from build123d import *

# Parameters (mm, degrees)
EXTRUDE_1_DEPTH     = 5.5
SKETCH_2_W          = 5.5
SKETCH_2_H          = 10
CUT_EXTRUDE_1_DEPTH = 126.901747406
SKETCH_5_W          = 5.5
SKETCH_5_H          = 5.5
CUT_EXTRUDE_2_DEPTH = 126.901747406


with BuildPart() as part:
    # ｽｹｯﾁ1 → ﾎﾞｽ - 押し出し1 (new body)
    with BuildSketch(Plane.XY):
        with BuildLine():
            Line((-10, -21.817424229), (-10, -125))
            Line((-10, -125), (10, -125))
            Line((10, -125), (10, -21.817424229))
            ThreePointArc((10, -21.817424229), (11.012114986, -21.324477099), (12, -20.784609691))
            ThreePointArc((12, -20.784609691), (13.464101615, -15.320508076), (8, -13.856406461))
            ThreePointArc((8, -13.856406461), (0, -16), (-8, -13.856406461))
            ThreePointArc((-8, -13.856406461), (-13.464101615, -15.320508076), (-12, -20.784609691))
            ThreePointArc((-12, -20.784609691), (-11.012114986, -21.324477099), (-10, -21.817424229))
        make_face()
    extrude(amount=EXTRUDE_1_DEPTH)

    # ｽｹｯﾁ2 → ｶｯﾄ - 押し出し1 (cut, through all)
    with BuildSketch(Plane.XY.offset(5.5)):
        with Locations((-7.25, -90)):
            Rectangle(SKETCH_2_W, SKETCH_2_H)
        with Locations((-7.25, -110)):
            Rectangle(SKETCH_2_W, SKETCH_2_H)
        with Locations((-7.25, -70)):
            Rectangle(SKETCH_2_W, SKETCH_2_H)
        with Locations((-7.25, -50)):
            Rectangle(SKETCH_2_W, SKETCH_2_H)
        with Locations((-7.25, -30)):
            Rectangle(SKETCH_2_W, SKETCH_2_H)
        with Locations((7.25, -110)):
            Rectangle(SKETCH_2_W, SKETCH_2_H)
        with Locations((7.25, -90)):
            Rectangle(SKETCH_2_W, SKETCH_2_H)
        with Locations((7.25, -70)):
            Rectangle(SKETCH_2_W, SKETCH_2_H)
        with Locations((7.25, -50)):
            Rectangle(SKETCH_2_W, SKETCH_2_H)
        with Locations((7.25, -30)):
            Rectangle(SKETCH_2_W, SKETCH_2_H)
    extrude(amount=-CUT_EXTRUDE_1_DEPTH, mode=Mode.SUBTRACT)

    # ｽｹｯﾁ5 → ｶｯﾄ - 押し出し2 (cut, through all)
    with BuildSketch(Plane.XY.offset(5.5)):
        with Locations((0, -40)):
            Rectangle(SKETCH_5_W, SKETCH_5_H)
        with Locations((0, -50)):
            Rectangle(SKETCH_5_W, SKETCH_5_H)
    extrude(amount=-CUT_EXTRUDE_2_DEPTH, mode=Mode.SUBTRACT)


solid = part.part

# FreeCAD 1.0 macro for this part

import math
import FreeCAD as App
import Part
import Sketcher

V = App.Vector
Q = App.Units.Quantity


def add_polygon(sketch, points):
    """Adds a closed chain of lines whose ends are joined by coincident constraints."""
    first, n = sketch.GeometryCount, len(points)
    for a, b in zip(points, points[1:] + points[:1]):
        sketch.addGeometry(Part.LineSegment(App.Vector(*a, 0), App.Vector(*b, 0)), False)
    for i in range(n):
        sketch.addConstraint(Sketcher.Constraint("Coincident", first + i, 2, first + (i + 1) % n, 1))

doc = App.newDocument("Part")
body = doc.addObject("PartDesign::Body", "Body")

sketch1 = body.newObject("Sketcher::SketchObject", "Sketch")
sketch1.AttachmentSupport = (doc.getObject("XY_Plane"), [""])
sketch1.MapMode = "FlatFace"
sketch1.addGeometry([
    Part.LineSegment(V(-10, -21.8, 0), V(-10, -125, 0)),
    Part.LineSegment(V(-10, -125, 0), V(10, -125, 0)),
    Part.LineSegment(V(10, -125, 0), V(10, -21.8, 0)),
    Part.ArcOfCircle(Part.Circle(V(0, 0, 0), V(0, 0, 1), 24), math.radians(-65.38), math.radians(-60)),
    Part.ArcOfCircle(Part.Circle(V(10, -17.3, 0), V(0, 0, 1), 4), math.radians(-60), math.radians(120)),
    Part.ArcOfCircle(Part.Circle(V(0, 0, 0), V(0, 0, 1), 16), math.radians(-120), math.radians(-60)),
    Part.ArcOfCircle(Part.Circle(V(-10, -17.3, 0), V(0, 0, 1), 4), math.radians(60), math.radians(240)),
    Part.ArcOfCircle(Part.Circle(V(0, 0, 0), V(0, 0, 1), 24), math.radians(-120), math.radians(-114.62)),
], False)
sketch1.addConstraint([
    Sketcher.Constraint("Coincident", 0, 2, 1, 1),
    Sketcher.Constraint("Coincident", 1, 2, 2, 1),
    Sketcher.Constraint("Coincident", 2, 2, 3, 1),
    Sketcher.Constraint("Tangent", 3, 2, 4, 1),
    Sketcher.Constraint("Tangent", 4, 2, 5, 2),
    Sketcher.Constraint("Tangent", 5, 1, 6, 1),
    Sketcher.Constraint("Tangent", 6, 2, 7, 1),
    Sketcher.Constraint("Coincident", 7, 2, 0, 1),
    Sketcher.Constraint("Vertical", 0),
    Sketcher.Constraint("Horizontal", 1),
    Sketcher.Constraint("Vertical", 2),
    Sketcher.Constraint("Coincident", 3, 3, -1, 1),
    Sketcher.Constraint("Coincident", 5, 3, -1, 1),
    Sketcher.Constraint("Coincident", 7, 3, -1, 1),
    Sketcher.Constraint("Equal", 4, 6),
    Sketcher.Constraint("Horizontal", 4, 3, 6, 3),
    Sketcher.Constraint("Horizontal", 2, 2, 7, 2),
    Sketcher.Constraint("Vertical", 6, 3, 0, 2),
    Sketcher.Constraint("Radius", 3, Q("24 mm")),
    Sketcher.Constraint("Radius", 4, Q("4 mm")),
    Sketcher.Constraint("DistanceX", 1, 1, 1, 2, Q("20 mm")),
    Sketcher.Constraint("DistanceY", 0, 2, -1, 1, Q("125 mm")),
])
pad1 = body.newObject("PartDesign::Pad", "Pad")
pad1.Profile = sketch1
pad1.Length = 5.5

sketch2 = body.newObject("Sketcher::SketchObject", "Sketch001")
sketch2.AttachmentSupport = (doc.getObject("XY_Plane"), [""])
sketch2.MapMode = "FlatFace"
sketch2.AttachmentOffset = App.Placement(V(0, 0, 5.5), App.Rotation())
add_polygon(sketch2, [(-10, -85), (-10, -95), (-4, -95), (-4, -85)])
add_polygon(sketch2, [(-10, -105), (-10, -115), (-4, -115), (-4, -105)])
add_polygon(sketch2, [(-10, -65), (-10, -75), (-4, -75), (-4, -65)])
add_polygon(sketch2, [(-10, -45), (-10, -55), (-4, -55), (-4, -45)])
add_polygon(sketch2, [(-10, -25), (-10, -35), (-4, -35), (-4, -25)])
add_polygon(sketch2, [(4, -105), (4, -115), (10, -115), (10, -105)])
add_polygon(sketch2, [(4, -85), (4, -95), (10, -95), (10, -85)])
add_polygon(sketch2, [(4, -65), (4, -75), (10, -75), (10, -65)])
add_polygon(sketch2, [(4, -45), (4, -55), (10, -55), (10, -45)])
add_polygon(sketch2, [(4, -25), (4, -35), (10, -35), (10, -25)])
sketch2.addConstraint([
    Sketcher.Constraint("Vertical", 0),
    Sketcher.Constraint("Horizontal", 1),
    Sketcher.Constraint("Vertical", 2),
    Sketcher.Constraint("Horizontal", 3),
    Sketcher.Constraint("Vertical", 4),
    Sketcher.Constraint("Horizontal", 5),
    Sketcher.Constraint("Vertical", 6),
    Sketcher.Constraint("Horizontal", 7),
    Sketcher.Constraint("Vertical", 8),
    Sketcher.Constraint("Horizontal", 9),
    Sketcher.Constraint("Vertical", 10),
    Sketcher.Constraint("Horizontal", 11),
    Sketcher.Constraint("Vertical", 12),
    Sketcher.Constraint("Horizontal", 13),
    Sketcher.Constraint("Vertical", 14),
    Sketcher.Constraint("Horizontal", 15),
    Sketcher.Constraint("Vertical", 16),
    Sketcher.Constraint("Horizontal", 17),
    Sketcher.Constraint("Vertical", 18),
    Sketcher.Constraint("Horizontal", 19),
    Sketcher.Constraint("Vertical", 20),
    Sketcher.Constraint("Horizontal", 21),
    Sketcher.Constraint("Vertical", 22),
    Sketcher.Constraint("Horizontal", 23),
    Sketcher.Constraint("Vertical", 24),
    Sketcher.Constraint("Horizontal", 25),
    Sketcher.Constraint("Vertical", 26),
    Sketcher.Constraint("Horizontal", 27),
    Sketcher.Constraint("Vertical", 28),
    Sketcher.Constraint("Horizontal", 29),
    Sketcher.Constraint("Vertical", 30),
    Sketcher.Constraint("Horizontal", 31),
    Sketcher.Constraint("Vertical", 32),
    Sketcher.Constraint("Horizontal", 33),
    Sketcher.Constraint("Vertical", 34),
    Sketcher.Constraint("Horizontal", 35),
    Sketcher.Constraint("Vertical", 36),
    Sketcher.Constraint("Horizontal", 37),
    Sketcher.Constraint("Vertical", 38),
    Sketcher.Constraint("Horizontal", 39),
    Sketcher.Constraint("Symmetric", 5, 2, 20, 2, -2),
    Sketcher.Constraint("Symmetric", 7, 2, 22, 2, -2),
    Sketcher.Constraint("Symmetric", 1, 2, 24, 2, -2),
    Sketcher.Constraint("Symmetric", 3, 2, 26, 2, -2),
    Sketcher.Constraint("Symmetric", 9, 2, 28, 2, -2),
    Sketcher.Constraint("Symmetric", 11, 2, 30, 2, -2),
    Sketcher.Constraint("Symmetric", 13, 2, 32, 2, -2),
    Sketcher.Constraint("Symmetric", 15, 2, 34, 2, -2),
    Sketcher.Constraint("Symmetric", 17, 2, 36, 2, -2),
    Sketcher.Constraint("Symmetric", 19, 2, 38, 2, -2),
    Sketcher.Constraint("Vertical", 3, 2, 4, 2),
    Sketcher.Constraint("Vertical", 2, 2, 5, 2),
    Sketcher.Constraint("Vertical", 7, 2, 8, 2),
    Sketcher.Constraint("Vertical", 6, 2, 9, 2),
    Sketcher.Constraint("Vertical", 11, 2, 12, 2),
    Sketcher.Constraint("Vertical", 10, 2, 13, 2),
    Sketcher.Constraint("Vertical", 15, 2, 16, 2),
    Sketcher.Constraint("Vertical", 14, 2, 17, 2),
    Sketcher.Constraint("Equal", 2, 4),
    Sketcher.Constraint("Equal", 6, 8),
    Sketcher.Constraint("Equal", 10, 12),
    Sketcher.Constraint("Equal", 14, 16),
    Sketcher.Constraint("DistanceY", 0, 2, 0, 1, Q("10 mm")),
    Sketcher.Constraint("DistanceX", 1, 1, 1, 2, Q("5.5 mm")),
    Sketcher.Constraint("DistanceX", 0, 2, -1, 1, Q("10 mm")),
    Sketcher.Constraint("DistanceY", 0, 2, -1, 1, Q("95 mm")),
    Sketcher.Constraint("DistanceY", 4, 2, -1, 1, Q("115 mm")),
    Sketcher.Constraint("DistanceY", 8, 2, -1, 1, Q("75 mm")),
    Sketcher.Constraint("DistanceY", 12, 2, -1, 1, Q("55 mm")),
    Sketcher.Constraint("DistanceY", 16, 2, -1, 1, Q("35 mm")),
])
pocket1 = body.newObject("PartDesign::Pocket", "Pocket")
pocket1.Profile = sketch2
pocket1.Type = "ThroughAll"

sketch3 = body.newObject("Sketcher::SketchObject", "Sketch002")
sketch3.AttachmentSupport = (doc.getObject("XY_Plane"), [""])
sketch3.MapMode = "FlatFace"
sketch3.AttachmentOffset = App.Placement(V(0, 0, 5.5), App.Rotation())
add_polygon(sketch3, [(-3, -37), (-3, -43), (3, -43), (3, -37)])
add_polygon(sketch3, [(-3, -47), (-3, -53), (3, -53), (3, -47)])
sketch3.addConstraint([
    Sketcher.Constraint("Vertical", 0),
    Sketcher.Constraint("Horizontal", 1),
    Sketcher.Constraint("Vertical", 2),
    Sketcher.Constraint("Horizontal", 3),
    Sketcher.Constraint("Vertical", 4),
    Sketcher.Constraint("Horizontal", 5),
    Sketcher.Constraint("Vertical", 6),
    Sketcher.Constraint("Horizontal", 7),
    Sketcher.Constraint("Vertical", 3, 2, 4, 2),
    Sketcher.Constraint("Vertical", 2, 2, 5, 2),
    Sketcher.Constraint("Equal", 7, 0),
    Sketcher.Constraint("Equal", 2, 4),
    Sketcher.Constraint("DistanceX", 1, 1, 1, 2, Q("5.5 mm")),
    Sketcher.Constraint("DistanceY", 4, 2, 0, 2, Q("10 mm")),
    Sketcher.Constraint("DistanceX", 0, 2, -1, 1, Q("2.75 mm")),
    Sketcher.Constraint("DistanceY", 0, 2, -1, 1, Q("42.75 mm")),
])
pocket2 = body.newObject("PartDesign::Pocket", "Pocket001")
pocket2.Profile = sketch3
pocket2.Type = "ThroughAll"

doc.recompute()
